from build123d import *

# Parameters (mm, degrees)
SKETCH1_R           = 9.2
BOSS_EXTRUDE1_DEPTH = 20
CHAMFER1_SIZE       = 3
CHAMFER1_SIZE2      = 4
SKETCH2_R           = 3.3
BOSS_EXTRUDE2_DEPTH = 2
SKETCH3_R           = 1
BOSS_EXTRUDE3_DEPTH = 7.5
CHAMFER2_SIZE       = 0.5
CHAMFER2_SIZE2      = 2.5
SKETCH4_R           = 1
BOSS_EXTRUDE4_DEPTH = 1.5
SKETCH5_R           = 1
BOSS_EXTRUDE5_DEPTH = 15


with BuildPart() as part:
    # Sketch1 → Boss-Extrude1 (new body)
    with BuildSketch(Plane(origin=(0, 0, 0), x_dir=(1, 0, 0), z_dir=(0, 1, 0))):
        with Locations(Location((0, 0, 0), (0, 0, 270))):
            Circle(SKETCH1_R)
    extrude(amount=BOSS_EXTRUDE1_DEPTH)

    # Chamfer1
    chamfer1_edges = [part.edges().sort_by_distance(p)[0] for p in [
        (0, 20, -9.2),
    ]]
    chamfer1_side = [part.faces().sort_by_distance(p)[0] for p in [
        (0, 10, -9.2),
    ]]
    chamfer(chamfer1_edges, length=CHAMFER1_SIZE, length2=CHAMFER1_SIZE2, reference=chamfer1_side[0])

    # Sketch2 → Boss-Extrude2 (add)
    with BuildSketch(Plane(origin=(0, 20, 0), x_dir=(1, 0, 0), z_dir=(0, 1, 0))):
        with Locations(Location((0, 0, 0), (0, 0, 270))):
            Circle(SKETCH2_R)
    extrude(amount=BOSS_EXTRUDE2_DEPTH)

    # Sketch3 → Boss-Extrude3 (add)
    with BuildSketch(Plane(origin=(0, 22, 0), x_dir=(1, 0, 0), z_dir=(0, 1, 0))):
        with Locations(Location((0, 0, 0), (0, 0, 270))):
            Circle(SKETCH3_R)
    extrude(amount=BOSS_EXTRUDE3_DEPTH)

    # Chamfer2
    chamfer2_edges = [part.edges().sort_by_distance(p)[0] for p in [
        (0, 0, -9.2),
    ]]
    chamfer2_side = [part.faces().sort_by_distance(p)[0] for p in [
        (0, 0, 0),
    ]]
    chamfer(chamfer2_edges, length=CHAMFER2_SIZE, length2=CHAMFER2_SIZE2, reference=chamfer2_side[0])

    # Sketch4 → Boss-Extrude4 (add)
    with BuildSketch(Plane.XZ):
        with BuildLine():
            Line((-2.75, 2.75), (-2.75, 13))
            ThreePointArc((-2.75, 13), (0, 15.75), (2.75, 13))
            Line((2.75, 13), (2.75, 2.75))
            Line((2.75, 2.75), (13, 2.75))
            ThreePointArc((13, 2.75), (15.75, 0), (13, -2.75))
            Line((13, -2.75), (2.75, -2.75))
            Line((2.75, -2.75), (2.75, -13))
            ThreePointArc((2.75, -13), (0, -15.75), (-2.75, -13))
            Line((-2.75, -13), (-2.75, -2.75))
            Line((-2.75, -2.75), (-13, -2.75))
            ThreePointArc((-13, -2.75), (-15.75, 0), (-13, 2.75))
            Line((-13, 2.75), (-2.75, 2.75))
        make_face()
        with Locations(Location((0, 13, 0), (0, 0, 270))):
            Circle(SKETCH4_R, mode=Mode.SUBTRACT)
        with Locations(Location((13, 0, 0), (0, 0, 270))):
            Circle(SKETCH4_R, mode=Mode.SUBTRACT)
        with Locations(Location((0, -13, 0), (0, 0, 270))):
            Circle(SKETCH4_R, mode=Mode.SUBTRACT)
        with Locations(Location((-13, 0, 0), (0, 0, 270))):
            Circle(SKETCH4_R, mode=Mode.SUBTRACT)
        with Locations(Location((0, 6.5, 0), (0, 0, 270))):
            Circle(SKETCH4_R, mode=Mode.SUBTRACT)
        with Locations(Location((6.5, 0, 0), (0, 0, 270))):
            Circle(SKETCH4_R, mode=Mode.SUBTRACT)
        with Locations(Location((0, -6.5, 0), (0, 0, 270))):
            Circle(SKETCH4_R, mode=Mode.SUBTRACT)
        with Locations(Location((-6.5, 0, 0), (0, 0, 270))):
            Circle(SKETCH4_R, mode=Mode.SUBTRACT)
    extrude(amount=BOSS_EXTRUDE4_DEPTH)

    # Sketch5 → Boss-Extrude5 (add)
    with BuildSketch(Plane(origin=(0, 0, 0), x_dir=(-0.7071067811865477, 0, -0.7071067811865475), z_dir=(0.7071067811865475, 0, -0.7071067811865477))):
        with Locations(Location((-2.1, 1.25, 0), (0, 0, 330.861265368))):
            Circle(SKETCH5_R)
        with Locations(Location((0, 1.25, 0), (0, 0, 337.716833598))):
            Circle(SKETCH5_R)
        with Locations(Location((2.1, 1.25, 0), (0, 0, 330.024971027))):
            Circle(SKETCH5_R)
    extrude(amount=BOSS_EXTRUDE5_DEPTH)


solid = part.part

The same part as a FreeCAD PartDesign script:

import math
import FreeCAD as App
import Part
import Sketcher
Q = App.Units.Quantity


def edges_at(feature, points):
    """Names of the edges that pass closest to the given points."""
    edges = feature.Shape.Edges
    near = lambda p: min(range(len(edges)), key=lambda i: edges[i].distToShape(Part.Vertex(*p))[0])
    return sorted({f"Edge{near(p) + 1}" for p in points})

doc = App.newDocument("Part")
body = doc.addObject("PartDesign::Body", "Body")

sketch1 = body.newObject("Sketcher::SketchObject", "Sketch")
sketch1.AttachmentSupport = (doc.getObject("XZ_Plane"), [""])
sketch1.MapMode = "FlatFace"
sketch1.addGeometry(Part.Circle(App.Vector(0, 0, 0), App.Vector(0, 0, 1), 9), False)
sketch1.addConstraint([
    Sketcher.Constraint("Coincident", 0, 3, -1, 1),
    Sketcher.Constraint("Diameter", 0, Q("18.4 mm")),
])
pad1 = body.newObject("PartDesign::Pad", "Pad")
pad1.Profile = sketch1
pad1.Length = 20
pad1.Reversed = True
doc.recompute()

chamfer = body.newObject("PartDesign::Chamfer", "Chamfer")
chamfer.Base = (pad1, edges_at(pad1, [(0, 20, -9.2)]))
chamfer.ChamferType = "Two distances"
chamfer.Size = 3
chamfer.Size2 = 4

sketch2 = body.newObject("Sketcher::SketchObject", "Sketch001")
sketch2.AttachmentSupport = (doc.getObject("XZ_Plane"), [""])
sketch2.MapMode = "FlatFace"
sketch2.AttachmentOffset = App.Placement(App.Vector(0, 0, -20), App.Rotation())
sketch2.addGeometry(Part.Circle(App.Vector(0, 0, 0), App.Vector(0, 0, 1), 3.3), False)
sketch2.addConstraint([
    Sketcher.Constraint("Coincident", 0, 3, -1, 1),
    Sketcher.Constraint("Diameter", 0, Q("6.6 mm")),
])
pad2 = body.newObject("PartDesign::Pad", "Pad001")
pad2.Profile = sketch2
pad2.Length = 2
pad2.Reversed = True

sketch3 = body.newObject("Sketcher::SketchObject", "Sketch002")
sketch3.AttachmentSupport = (doc.getObject("XZ_Plane"), [""])
sketch3.MapMode = "FlatFace"
sketch3.AttachmentOffset = App.Placement(App.Vector(0, 0, -22), App.Rotation())
sketch3.addGeometry(Part.Circle(App.Vector(0, 0, 0), App.Vector(0, 0, 1), 1), False)
sketch3.addConstraint([
    Sketcher.Constraint("Coincident", 0, 3, -1, 1),
    Sketcher.Constraint("Diameter", 0, Q("2 mm")),
])
pad3 = body.newObject("PartDesign::Pad", "Pad002")
pad3.Profile = sketch3
pad3.Length = 7.5
pad3.Reversed = True
doc.recompute()

chamfer2 = body.newObject("PartDesign::Chamfer", "Chamfer001")
chamfer2.Base = (pad3, edges_at(pad3, [(0, 0, -9.2)]))
chamfer2.ChamferType = "Two distances"
chamfer2.Size = 0.5
chamfer2.Size2 = 2.5
chamfer2.FlipDirection = True

sketch4 = body.newObject("Sketcher::SketchObject", "Sketch003")
sketch4.AttachmentSupport = (doc.getObject("XZ_Plane"), [""])
sketch4.MapMode = "FlatFace"
sketch4.addGeometry([
    Part.LineSegment(App.Vector(-2.8, 13, 0), App.Vector(-2.8, 2.8, 0)),
    Part.LineSegment(App.Vector(-2.8, 2.8, 0), App.Vector(-13, 2.8, 0)),
    Part.ArcOfCircle(Part.Circle(App.Vector(-13, 0, 0), App.Vector(0, 0, 1), 2.8), math.radians(90), math.radians(270)),
    Part.LineSegment(App.Vector(-13, -2.8, 0), App.Vector(-2.8, -2.8, 0)),
    Part.LineSegment(App.Vector(-2.8, -2.8, 0), App.Vector(-2.8, -13, 0)),
    Part.ArcOfCircle(Part.Circle(App.Vector(0, -13, 0), App.Vector(0, 0, 1), 2.8), math.radians(180), math.radians(360)),
    Part.LineSegment(App.Vector(2.8, -13, 0), App.Vector(2.8, -2.8, 0)),
    Part.LineSegment(App.Vector(2.8, -2.8, 0), App.Vector(13, -2.8, 0)),
    Part.ArcOfCircle(Part.Circle(App.Vector(13, 0, 0), App.Vector(0, 0, 1), 2.8), math.radians(-90), math.radians(90)),
    Part.LineSegment(App.Vector(13, 2.8, 0), App.Vector(2.8, 2.8, 0)),
    Part.LineSegment(App.Vector(2.8, 2.8, 0), App.Vector(2.8, 13, 0)),
    Part.ArcOfCircle(Part.Circle(App.Vector(0, 13, 0), App.Vector(0, 0, 1), 2.8), math.radians(0), math.radians(180)),
    Part.Circle(App.Vector(0, -13, 0), App.Vector(0, 0, 1), 1),
    Part.Circle(App.Vector(0, -6.5, 0), App.Vector(0, 0, 1), 1),
    Part.Circle(App.Vector(13, 0, 0), App.Vector(0, 0, 1), 1),
    Part.Circle(App.Vector(6.5, 0, 0), App.Vector(0, 0, 1), 1),
    Part.Circle(App.Vector(-6.5, 0, 0), App.Vector(0, 0, 1), 1),
    Part.Circle(App.Vector(0, 6.5, 0), App.Vector(0, 0, 1), 1),
    Part.Circle(App.Vector(-13, 0, 0), App.Vector(0, 0, 1), 1),
    Part.Circle(App.Vector(0, 13, 0), App.Vector(0, 0, 1), 1),
], False)
sketch4.addConstraint([
    Sketcher.Constraint("Coincident", 0, 2, 1, 1),
    Sketcher.Constraint("Tangent", 1, 2, 2, 1),
    Sketcher.Constraint("Tangent", 2, 2, 3, 1),
    Sketcher.Constraint("Coincident", 3, 2, 4, 1),
    Sketcher.Constraint("Tangent", 4, 2, 5, 1),
    Sketcher.Constraint("Tangent", 5, 2, 6, 1),
    Sketcher.Constraint("Coincident", 6, 2, 7, 1),
    Sketcher.Constraint("Tangent", 7, 2, 8, 1),
    Sketcher.Constraint("Tangent", 8, 2, 9, 1),
    Sketcher.Constraint("Coincident", 9, 2, 10, 1),
    Sketcher.Constraint("Tangent", 10, 2, 11, 1),
    Sketcher.Constraint("Tangent", 11, 2, 0, 1),
    Sketcher.Constraint("Vertical", 0),
    Sketcher.Constraint("Horizontal", 1),
    Sketcher.Constraint("Horizontal", 3),
    Sketcher.Constraint("Vertical", 4),
    Sketcher.Constraint("Vertical", 6),
    Sketcher.Constraint("Horizontal", 7),
    Sketcher.Constraint("Horizontal", 9),
    Sketcher.Constraint("Vertical", 10),
    Sketcher.Constraint("Coincident", 12, 3, 5, 3),
    Sketcher.Constraint("Coincident", 14, 3, 8, 3),
    Sketcher.Constraint("Coincident", 18, 3, 2, 3),
    Sketcher.Constraint("Coincident", 19, 3, 11, 3),
    Sketcher.Constraint("Equal", 2, 5),
    Sketcher.Constraint("Equal", 5, 8),
    Sketcher.Constraint("Equal", 8, 11),
    Sketcher.Constraint("Equal", 12, 13),
    Sketcher.Constraint("Equal", 13, 14),
    Sketcher.Constraint("Equal", 14, 15),
    Sketcher.Constraint("Equal", 15, 16),
    Sketcher.Constraint("Equal", 16, 17),
    Sketcher.Constraint("Equal", 17, 18),
    Sketcher.Constraint("Equal", 18, 19),
    Sketcher.Constraint("Symmetric", 2, 3, 8, 3, -1, 1),
    Sketcher.Constraint("Symmetric", 5, 3, 11, 3, -1, 1),
    Sketcher.Constraint("Symmetric", 15, 3, 16, 3, -1, 1),
    Sketcher.Constraint("Symmetric", 13, 3, 17, 3, -1, 1),
    Sketcher.Constraint("Symmetric", 3, 2, 6, 2, -2),
    Sketcher.Constraint("PointOnObject", 13, 3, -2),
    Sketcher.Constraint("PointOnObject", 15, 3, -1),
    Sketcher.Constraint("Equal", 9, 0),
    Sketcher.Constraint("Diameter", 12, Q("2 mm")),
    Sketcher.Constraint("Radius", 2, Q("2.75 mm")),
    Sketcher.Constraint("DistanceX", 2, 3, -1, 1, Q("13 mm")),
    Sketcher.Constraint("DistanceX", 16, 3, 15, 3, Q("13 mm")),
    Sketcher.Constraint("DistanceY", 13, 3, 17, 3, Q("13 mm")),
])
pad4 = body.newObject("PartDesign::Pad", "Pad003")
pad4.Profile = sketch4
pad4.Length = 1.5

sketch5 = body.newObject("Sketcher::SketchObject", "Sketch004")
sketch5.Placement = App.Placement(App.Vector(0, 0, 0), App.Rotation(App.Vector(-0.707106781, 0, -0.707106781), App.Vector(0, 0.999999999, 0), App.Vector(0.707106781, 0, -0.707106781), "ZXY"))
sketch5.addGeometry([
    Part.Circle(App.Vector(-2.1, 1.2, 0), App.Vector(0, 0, 1), 1),
    Part.Circle(App.Vector(0, 1.2, 0), App.Vector(0, 0, 1), 1),
    Part.Circle(App.Vector(2.1, 1.2, 0), App.Vector(0, 0, 1), 1),
], False)
sketch5.addConstraint([
    Sketcher.Constraint("Equal", 0, 1),
    Sketcher.Constraint("Equal", 1, 2),
    Sketcher.Constraint("Symmetric", 0, 3, 2, 3, -2),
    Sketcher.Constraint("PointOnObject", 1, 3, -2),
    Sketcher.Constraint("Horizontal", 0, 3, 1, 3),
    Sketcher.Constraint("Diameter", 0, Q("2 mm")),
    Sketcher.Constraint("DistanceX", 0, 3, -1, 1, Q("2.1 mm")),
    Sketcher.Constraint("DistanceY", -1, 1, 0, 3, Q("1.25 mm")),
])
pad5 = body.newObject("PartDesign::Pad", "Pad004")
pad5.Profile = sketch5
pad5.Length = 15

doc.recompute()
